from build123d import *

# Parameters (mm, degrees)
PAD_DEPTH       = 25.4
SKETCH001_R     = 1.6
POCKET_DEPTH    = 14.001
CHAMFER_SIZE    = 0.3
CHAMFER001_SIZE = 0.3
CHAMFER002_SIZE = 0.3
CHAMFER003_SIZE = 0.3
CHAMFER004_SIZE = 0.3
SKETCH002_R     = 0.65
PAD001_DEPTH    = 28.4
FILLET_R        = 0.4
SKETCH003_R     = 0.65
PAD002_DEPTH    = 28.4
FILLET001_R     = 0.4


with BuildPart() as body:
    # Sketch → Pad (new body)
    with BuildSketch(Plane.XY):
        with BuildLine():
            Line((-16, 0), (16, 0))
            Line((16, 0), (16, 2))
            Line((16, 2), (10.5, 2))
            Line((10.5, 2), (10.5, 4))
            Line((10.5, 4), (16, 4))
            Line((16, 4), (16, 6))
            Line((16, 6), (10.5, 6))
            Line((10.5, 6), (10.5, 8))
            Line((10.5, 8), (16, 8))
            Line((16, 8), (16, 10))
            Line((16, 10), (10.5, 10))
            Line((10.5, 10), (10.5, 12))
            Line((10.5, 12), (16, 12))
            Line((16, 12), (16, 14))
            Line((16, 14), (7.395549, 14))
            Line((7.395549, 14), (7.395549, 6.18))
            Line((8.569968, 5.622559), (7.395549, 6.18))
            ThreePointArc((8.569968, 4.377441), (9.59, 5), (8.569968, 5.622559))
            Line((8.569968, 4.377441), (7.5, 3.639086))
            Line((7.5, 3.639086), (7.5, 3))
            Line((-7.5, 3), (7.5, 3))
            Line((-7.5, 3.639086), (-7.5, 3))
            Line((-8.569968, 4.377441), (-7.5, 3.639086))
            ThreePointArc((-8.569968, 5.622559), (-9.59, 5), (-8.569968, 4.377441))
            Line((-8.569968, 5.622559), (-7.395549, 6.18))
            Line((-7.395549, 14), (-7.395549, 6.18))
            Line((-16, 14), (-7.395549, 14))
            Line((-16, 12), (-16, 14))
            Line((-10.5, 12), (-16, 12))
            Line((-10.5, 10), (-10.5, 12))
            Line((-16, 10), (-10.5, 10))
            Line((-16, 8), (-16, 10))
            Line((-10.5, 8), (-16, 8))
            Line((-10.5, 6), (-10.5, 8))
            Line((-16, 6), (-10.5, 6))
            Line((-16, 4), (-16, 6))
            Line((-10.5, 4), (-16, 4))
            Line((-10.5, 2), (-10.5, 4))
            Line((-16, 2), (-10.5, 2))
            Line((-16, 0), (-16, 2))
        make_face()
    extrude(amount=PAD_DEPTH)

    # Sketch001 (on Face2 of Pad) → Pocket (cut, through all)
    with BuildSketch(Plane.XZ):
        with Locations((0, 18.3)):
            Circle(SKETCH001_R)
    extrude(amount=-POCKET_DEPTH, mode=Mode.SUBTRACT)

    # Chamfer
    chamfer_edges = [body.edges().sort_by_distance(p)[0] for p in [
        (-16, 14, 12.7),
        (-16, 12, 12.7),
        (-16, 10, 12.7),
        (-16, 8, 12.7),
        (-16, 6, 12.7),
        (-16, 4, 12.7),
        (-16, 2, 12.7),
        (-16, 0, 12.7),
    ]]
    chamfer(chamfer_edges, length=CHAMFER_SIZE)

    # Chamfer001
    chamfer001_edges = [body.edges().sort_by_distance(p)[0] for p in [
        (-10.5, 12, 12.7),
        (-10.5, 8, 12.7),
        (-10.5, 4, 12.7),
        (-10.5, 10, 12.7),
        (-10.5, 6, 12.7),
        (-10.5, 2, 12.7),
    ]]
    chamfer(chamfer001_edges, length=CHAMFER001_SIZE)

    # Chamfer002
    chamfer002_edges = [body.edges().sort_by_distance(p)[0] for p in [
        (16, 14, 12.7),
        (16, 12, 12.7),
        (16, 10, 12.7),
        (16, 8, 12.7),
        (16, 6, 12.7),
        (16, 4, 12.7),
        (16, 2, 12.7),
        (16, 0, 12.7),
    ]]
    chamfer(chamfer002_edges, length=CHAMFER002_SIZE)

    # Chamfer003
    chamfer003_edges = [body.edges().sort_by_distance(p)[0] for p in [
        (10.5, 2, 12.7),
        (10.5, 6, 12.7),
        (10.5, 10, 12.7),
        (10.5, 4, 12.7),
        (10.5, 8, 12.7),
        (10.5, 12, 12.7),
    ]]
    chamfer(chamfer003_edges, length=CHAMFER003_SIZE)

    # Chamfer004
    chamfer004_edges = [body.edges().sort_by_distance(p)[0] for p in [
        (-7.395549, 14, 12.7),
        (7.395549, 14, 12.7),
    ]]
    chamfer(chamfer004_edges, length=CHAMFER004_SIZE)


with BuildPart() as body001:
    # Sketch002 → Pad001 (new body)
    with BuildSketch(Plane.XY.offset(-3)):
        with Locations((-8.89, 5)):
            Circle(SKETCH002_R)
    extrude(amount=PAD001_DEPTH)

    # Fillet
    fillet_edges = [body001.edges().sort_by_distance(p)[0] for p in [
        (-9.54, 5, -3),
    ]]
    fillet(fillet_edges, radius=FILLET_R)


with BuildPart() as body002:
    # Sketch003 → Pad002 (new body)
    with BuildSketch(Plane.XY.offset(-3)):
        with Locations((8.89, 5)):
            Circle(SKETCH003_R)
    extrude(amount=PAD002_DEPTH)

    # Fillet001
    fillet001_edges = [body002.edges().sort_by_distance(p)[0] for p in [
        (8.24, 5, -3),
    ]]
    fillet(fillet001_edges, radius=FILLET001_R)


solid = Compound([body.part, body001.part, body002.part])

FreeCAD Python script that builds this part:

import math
import FreeCAD as App
import Part
import Sketcher
from FreeCAD import Vector


def edges_at(feature, points):
    """Names of the edges that pass closest to the given points."""
    edges = feature.Shape.Edges
    near = lambda p: min(range(len(edges)), key=lambda i: edges[i].distToShape(Part.Vertex(*p))[0])
    return sorted({f"Edge{near(p) + 1}" for p in points})

doc = App.newDocument("Part")
body = doc.addObject("PartDesign::Body", "Body")

# Sketch on XY plane
sketch1 = doc.addObject("Sketcher::SketchObject", "Sketch")
body.addObject(sketch1)
sketch1.AttachmentSupport = (doc.XY_Plane, [""])
sketch1.MapMode = "FlatFace"
sketch1.addGeometry([
    Part.LineSegment(Vector(-16, 0, 0), Vector(16, 0, 0)),  # 0
    Part.LineSegment(Vector(16, 0, 0), Vector(16, 2, 0)),  # 1
    Part.LineSegment(Vector(16, 2, 0), Vector(10.5, 2, 0)),  # 2
    Part.LineSegment(Vector(10.5, 2, 0), Vector(10.5, 4, 0)),  # 3
    Part.LineSegment(Vector(10.5, 4, 0), Vector(16, 4, 0)),  # 4
    Part.LineSegment(Vector(16, 4, 0), Vector(16, 6, 0)),  # 5
    Part.LineSegment(Vector(16, 6, 0), Vector(10.5, 6, 0)),  # 6
    Part.LineSegment(Vector(10.5, 6, 0), Vector(10.5, 8, 0)),  # 7
    Part.LineSegment(Vector(10.5, 8, 0), Vector(16, 8, 0)),  # 8
    Part.LineSegment(Vector(16, 8, 0), Vector(16, 10, 0)),  # 9
    Part.LineSegment(Vector(16, 10, 0), Vector(10.5, 10, 0)),  # 10
    Part.LineSegment(Vector(10.5, 10, 0), Vector(10.5, 12, 0)),  # 11
    Part.LineSegment(Vector(10.5, 12, 0), Vector(16, 12, 0)),  # 12
    Part.LineSegment(Vector(16, 12, 0), Vector(16, 14, 0)),  # 13
    Part.LineSegment(Vector(16, 14, 0), Vector(7.4, 14, 0)),  # 14
    Part.LineSegment(Vector(7.4, 14, 0), Vector(7.4, 6.2, 0)),  # 15
    Part.LineSegment(Vector(7.4, 6.2, 0), Vector(8.6, 5.6, 0)),  # 16
    Part.ArcOfCircle(Part.Circle(Vector(8.9, 5, 0), Vector(0, 0, 1), 0.7), math.radians(-117), math.radians(117)),  # 17
    Part.LineSegment(Vector(8.6, 4.4, 0), Vector(7.5, 3.6, 0)),  # 18
    Part.LineSegment(Vector(7.5, 3.6, 0), Vector(7.5, 3, 0)),  # 19
    Part.LineSegment(Vector(7.5, 3, 0), Vector(-7.5, 3, 0)),  # 20
    Part.LineSegment(Vector(-7.5, 3, 0), Vector(-7.5, 3.6, 0)),  # 21
    Part.LineSegment(Vector(-7.5, 3.6, 0), Vector(-8.6, 4.4, 0)),  # 22
    Part.ArcOfCircle(Part.Circle(Vector(-8.9, 5, 0), Vector(0, 0, 1), 0.7), math.radians(63), math.radians(297)),  # 23
    Part.LineSegment(Vector(-8.6, 5.6, 0), Vector(-7.4, 6.2, 0)),  # 24
    Part.LineSegment(Vector(-7.4, 6.2, 0), Vector(-7.4, 14, 0)),  # 25
    Part.LineSegment(Vector(-7.4, 14, 0), Vector(-16, 14, 0)),  # 26
    Part.LineSegment(Vector(-16, 14, 0), Vector(-16, 12, 0)),  # 27
    Part.LineSegment(Vector(-16, 12, 0), Vector(-10.5, 12, 0)),  # 28
    Part.LineSegment(Vector(-10.5, 12, 0), Vector(-10.5, 10, 0)),  # 29
    Part.LineSegment(Vector(-10.5, 10, 0), Vector(-16, 10, 0)),  # 30
    Part.LineSegment(Vector(-16, 10, 0), Vector(-16, 8, 0)),  # 31
    Part.LineSegment(Vector(-16, 8, 0), Vector(-10.5, 8, 0)),  # 32
    Part.LineSegment(Vector(-10.5, 8, 0), Vector(-10.5, 6, 0)),  # 33
    Part.LineSegment(Vector(-10.5, 6, 0), Vector(-16, 6, 0)),  # 34
    Part.LineSegment(Vector(-16, 6, 0), Vector(-16, 4, 0)),  # 35
    Part.LineSegment(Vector(-16, 4, 0), Vector(-10.5, 4, 0)),  # 36
    Part.LineSegment(Vector(-10.5, 4, 0), Vector(-10.5, 2, 0)),  # 37
    Part.LineSegment(Vector(-10.5, 2, 0), Vector(-16, 2, 0)),  # 38
    Part.LineSegment(Vector(-16, 2, 0), Vector(-16, 0, 0)),  # 39
], False)
sketch1.addConstraint([
    Sketcher.Constraint("Coincident", 0, 2, 1, 1),
    Sketcher.Constraint("Coincident", 1, 2, 2, 1),
    Sketcher.Constraint("Coincident", 2, 2, 3, 1),
    Sketcher.Constraint("Coincident", 3, 2, 4, 1),
    Sketcher.Constraint("Coincident", 4, 2, 5, 1),
    Sketcher.Constraint("Coincident", 5, 2, 6, 1),
    Sketcher.Constraint("Coincident", 6, 2, 7, 1),
    Sketcher.Constraint("Coincident", 7, 2, 8, 1),
    Sketcher.Constraint("Coincident", 8, 2, 9, 1),
    Sketcher.Constraint("Coincident", 9, 2, 10, 1),
    Sketcher.Constraint("Coincident", 10, 2, 11, 1),
    Sketcher.Constraint("Coincident", 11, 2, 12, 1),
    Sketcher.Constraint("Coincident", 12, 2, 13, 1),
    Sketcher.Constraint("Coincident", 13, 2, 14, 1),
    Sketcher.Constraint("Coincident", 14, 2, 15, 1),
    Sketcher.Constraint("Coincident", 15, 2, 16, 1),
    Sketcher.Constraint("Coincident", 16, 2, 17, 2),
    Sketcher.Constraint("Coincident", 17, 1, 18, 1),
    Sketcher.Constraint("Coincident", 18, 2, 19, 1),
    Sketcher.Constraint("Coincident", 19, 2, 20, 1),
    Sketcher.Constraint("Coincident", 20, 2, 21, 1),
    Sketcher.Constraint("Coincident", 21, 2, 22, 1),
    Sketcher.Constraint("Coincident", 22, 2, 23, 2),
    Sketcher.Constraint("Coincident", 23, 1, 24, 1),
    Sketcher.Constraint("Coincident", 24, 2, 25, 1),
    Sketcher.Constraint("Coincident", 25, 2, 26, 1),
    Sketcher.Constraint("Coincident", 26, 2, 27, 1),
    Sketcher.Constraint("Coincident", 27, 2, 28, 1),
    Sketcher.Constraint("Coincident", 28, 2, 29, 1),
    Sketcher.Constraint("Coincident", 29, 2, 30, 1),
    Sketcher.Constraint("Coincident", 30, 2, 31, 1),
    Sketcher.Constraint("Coincident", 31, 2, 32, 1),
    Sketcher.Constraint("Coincident", 32, 2, 33, 1),
    Sketcher.Constraint("Coincident", 33, 2, 34, 1),
    Sketcher.Constraint("Coincident", 34, 2, 35, 1),
    Sketcher.Constraint("Coincident", 35, 2, 36, 1),
    Sketcher.Constraint("Coincident", 36, 2, 37, 1),
    Sketcher.Constraint("Coincident", 37, 2, 38, 1),
    Sketcher.Constraint("Coincident", 38, 2, 39, 1),
    Sketcher.Constraint("Coincident", 39, 2, 0, 1),
    Sketcher.Constraint("Horizontal", 0),
    Sketcher.Constraint("Vertical", 1),
    Sketcher.Constraint("Horizontal", 2),
    Sketcher.Constraint("Vertical", 3),
    Sketcher.Constraint("Horizontal", 4),
    Sketcher.Constraint("Vertical", 5),
    Sketcher.Constraint("Horizontal", 6),
    Sketcher.Constraint("Vertical", 7),
    Sketcher.Constraint("Horizontal", 8),
    Sketcher.Constraint("Vertical", 9),
    Sketcher.Constraint("Horizontal", 10),
    Sketcher.Constraint("Vertical", 11),
    Sketcher.Constraint("Horizontal", 12),
    Sketcher.Constraint("Vertical", 13),
    Sketcher.Constraint("Horizontal", 14),
    Sketcher.Constraint("Vertical", 15),
    Sketcher.Constraint("Vertical", 19),
    Sketcher.Constraint("Horizontal", 20),
    Sketcher.Constraint("Vertical", 21),
    Sketcher.Constraint("Vertical", 25),
    Sketcher.Constraint("Horizontal", 26),
    Sketcher.Constraint("Vertical", 27),
    Sketcher.Constraint("Horizontal", 28),
    Sketcher.Constraint("Vertical", 29),
    Sketcher.Constraint("Horizontal", 30),
    Sketcher.Constraint("Vertical", 31),
    Sketcher.Constraint("Horizontal", 32),
    Sketcher.Constraint("Vertical", 33),
    Sketcher.Constraint("Horizontal", 34),
    Sketcher.Constraint("Vertical", 35),
    Sketcher.Constraint("Horizontal", 36),
    Sketcher.Constraint("Vertical", 37),
    Sketcher.Constraint("Horizontal", 38),
    Sketcher.Constraint("Vertical", 39),
    Sketcher.Constraint("Equal", 17, 23),
    Sketcher.Constraint("Symmetric", 0, 2, 39, 2, -1, 1),
    Sketcher.Constraint("Symmetric", 17, 3, 23, 3, -2),
    Sketcher.Constraint("Symmetric", 18, 2, 21, 2, -2),
    Sketcher.Constraint("Symmetric", 15, 2, 24, 2, -2),
    Sketcher.Constraint("Symmetric", 13, 2, 26, 2, -2),
    Sketcher.Constraint("Symmetric", 11, 2, 28, 2, -2),
    Sketcher.Constraint("Symmetric", 9, 2, 30, 2, -2),
    Sketcher.Constraint("Symmetric", 7, 2, 32, 2, -2),
    Sketcher.Constraint("Symmetric", 5, 2, 34, 2, -2),
    Sketcher.Constraint("Symmetric", 3, 2, 36, 2, -2),
    Sketcher.Constraint("Horizontal", 17, 1, 22, 2),
    Sketcher.Constraint("Horizontal", 16, 2, 23, 1),
    Sketcher.Constraint("Horizontal", 2, 2, 37, 2),
    Sketcher.Constraint("Vertical", 1, 2, 4, 2),
    Sketcher.Constraint("Vertical", 3, 2, 6, 2),
    Sketcher.Constraint("Vertical", 5, 2, 8, 2),
    Sketcher.Constraint("Vertical", 7, 2, 10, 2),
    Sketcher.Constraint("Vertical", 9, 2, 12, 2),
    Sketcher.Constraint("Vertical", 16, 2, 17, 1),
    Sketcher.Constraint("Equal", 1, 3),
    Sketcher.Constraint("Equal", 3, 5),
    Sketcher.Constraint("Equal", 5, 7),
    Sketcher.Constraint("Equal", 7, 9),
    Sketcher.Constraint("Equal", 9, 11),
    Sketcher.Constraint("Equal", 11, 13),
    Sketcher.Constraint("Equal", 16, 18),
    Sketcher.Constraint("Radius", 17, 0.7),
    Sketcher.Constraint("DistanceX", 0, 1, 0, 2, 32.0),
    Sketcher.Constraint("DistanceX", 20, 2, 20, 1, 15.0),
    Sketcher.Constraint("DistanceY", 1, 1, 1, 2, 2.0),
    Sketcher.Constraint("DistanceX", 2, 2, 2, 1, 5.5),
    Sketcher.Constraint("DistanceY", -1, 1, 17, 3, 5.0),
    Sketcher.Constraint("DistanceY", -1, 1, 19, 2, 3.0),
    Sketcher.Constraint("Distance", 16, 1.3),
    Sketcher.Constraint("DistanceY", 15, 2, 15, 1, 7.82),
    Sketcher.Constraint("DistanceX", -1, 1, 17, 3, 8.89),
    Sketcher.Constraint("DistanceX", 14, 2, 14, 1, 8.604451),
])
pad1 = doc.addObject("PartDesign::Pad", "Pad")
body.addObject(pad1)
pad1.Profile = sketch1
pad1.Length = 25.4

# Sketch on XZ plane
sketch2 = doc.addObject("Sketcher::SketchObject", "Sketch001")
body.addObject(sketch2)
sketch2.AttachmentSupport = (doc.XZ_Plane, [""])
sketch2.MapMode = "FlatFace"
sketch2.addGeometry(Part.Circle(Vector(0, 18.3, 0), Vector(0, 0, 1), 1.6), False)
sketch2.addConstraint([
    Sketcher.Constraint("PointOnObject", 0, 3, -2),
    Sketcher.Constraint("Diameter", 0, 3.2),
    Sketcher.Constraint("DistanceY", -1, 1, 0, 3, 18.3),
])
pocket1 = doc.addObject("PartDesign::Pocket", "Pocket")
body.addObject(pocket1)
pocket1.Profile = sketch2
pocket1.Type = "ThroughAll"
doc.recompute()

chamfer = doc.addObject("PartDesign::Chamfer", "Chamfer")
body.addObject(chamfer)
chamfer.Base = (pocket1, edges_at(pocket1, [
    (-16, 14, 12.7),
    (-16, 12, 12.7),
    (-16, 10, 12.7),
    (-16, 8, 12.7),
    (-16, 6, 12.7),
    (-16, 4, 12.7),
    (-16, 2, 12.7),
    (-16, 0, 12.7),
]))
chamfer.Size = 0.3
doc.recompute()

chamfer2 = doc.addObject("PartDesign::Chamfer", "Chamfer001")
body.addObject(chamfer2)
chamfer2.Base = (chamfer, edges_at(chamfer, [
    (-10.5, 12, 12.7),
    (-10.5, 8, 12.7),
    (-10.5, 4, 12.7),
    (-10.5, 10, 12.7),
    (-10.5, 6, 12.7),
    (-10.5, 2, 12.7),
]))
chamfer2.Size = 0.3
doc.recompute()

chamfer3 = doc.addObject("PartDesign::Chamfer", "Chamfer002")
body.addObject(chamfer3)
chamfer3.Base = (chamfer2, edges_at(chamfer2, [
    (16, 14, 12.7),
    (16, 12, 12.7),
    (16, 10, 12.7),
    (16, 8, 12.7),
    (16, 6, 12.7),
    (16, 4, 12.7),
    (16, 2, 12.7),
    (16, 0, 12.7),
]))
chamfer3.Size = 0.3
doc.recompute()

chamfer4 = doc.addObject("PartDesign::Chamfer", "Chamfer003")
body.addObject(chamfer4)
chamfer4.Base = (chamfer3, edges_at(chamfer3, [
    (10.5, 2, 12.7),
    (10.5, 6, 12.7),
    (10.5, 10, 12.7),
    (10.5, 4, 12.7),
    (10.5, 8, 12.7),
    (10.5, 12, 12.7),
]))
chamfer4.Size = 0.3
doc.recompute()

chamfer5 = doc.addObject("PartDesign::Chamfer", "Chamfer004")
body.addObject(chamfer5)
chamfer5.Base = (chamfer4, edges_at(chamfer4, [(-7.396, 14, 12.7), (7.396, 14, 12.7)]))
chamfer5.Size = 0.3
body2 = doc.addObject("PartDesign::Body", "Body001")

# Sketch on XY plane
sketch3 = doc.addObject("Sketcher::SketchObject", "Sketch002")
body2.addObject(sketch3)
sketch3.AttachmentSupport = (doc.getObject("XY_Plane001"), [""])
sketch3.MapMode = "FlatFace"
sketch3.AttachmentOffset = App.Placement(Vector(0, 0, -3), App.Rotation())
sketch3.addGeometry(Part.Circle(Vector(-8.9, 5, 0), Vector(0, 0, 1), 0.7), False)
sketch3.addConstraint([
    Sketcher.Constraint("Diameter", 0, 1.3),
    Sketcher.Constraint("DistanceY", -1, 1, 0, 3, 5.0),
    Sketcher.Constraint("DistanceX", 0, 3, -1, 1, 8.89),
])
pad2 = doc.addObject("PartDesign::Pad", "Pad001")
body2.addObject(pad2)
pad2.Profile = sketch3
pad2.Length = 28.4
doc.recompute()

fillet = doc.addObject("PartDesign::Fillet", "Fillet")
body2.addObject(fillet)
fillet.Base = (pad2, edges_at(pad2, [(-9.54, 5, -3)]))
fillet.Radius = 0.4
body3 = doc.addObject("PartDesign::Body", "Body002")

# Sketch on XY plane
sketch4 = doc.addObject("Sketcher::SketchObject", "Sketch003")
body3.addObject(sketch4)
sketch4.AttachmentSupport = (doc.getObject("XY_Plane002"), [""])
sketch4.MapMode = "FlatFace"
sketch4.AttachmentOffset = App.Placement(Vector(0, 0, -3), App.Rotation())
sketch4.addGeometry(Part.Circle(Vector(8.9, 5, 0), Vector(0, 0, 1), 0.7), False)
sketch4.addConstraint([
    Sketcher.Constraint("Diameter", 0, 1.3),
    Sketcher.Constraint("DistanceY", -1, 1, 0, 3, 5.0),
    Sketcher.Constraint("DistanceX", -1, 1, 0, 3, 8.89),
])
pad3 = doc.addObject("PartDesign::Pad", "Pad002")
body3.addObject(pad3)
pad3.Profile = sketch4
pad3.Length = 28.4
doc.recompute()

fillet2 = doc.addObject("PartDesign::Fillet", "Fillet001")
body3.addObject(fillet2)
fillet2.Base = (pad3, edges_at(pad3, [(8.24, 5, -3)]))
fillet2.Radius = 0.4

doc.recompute()
